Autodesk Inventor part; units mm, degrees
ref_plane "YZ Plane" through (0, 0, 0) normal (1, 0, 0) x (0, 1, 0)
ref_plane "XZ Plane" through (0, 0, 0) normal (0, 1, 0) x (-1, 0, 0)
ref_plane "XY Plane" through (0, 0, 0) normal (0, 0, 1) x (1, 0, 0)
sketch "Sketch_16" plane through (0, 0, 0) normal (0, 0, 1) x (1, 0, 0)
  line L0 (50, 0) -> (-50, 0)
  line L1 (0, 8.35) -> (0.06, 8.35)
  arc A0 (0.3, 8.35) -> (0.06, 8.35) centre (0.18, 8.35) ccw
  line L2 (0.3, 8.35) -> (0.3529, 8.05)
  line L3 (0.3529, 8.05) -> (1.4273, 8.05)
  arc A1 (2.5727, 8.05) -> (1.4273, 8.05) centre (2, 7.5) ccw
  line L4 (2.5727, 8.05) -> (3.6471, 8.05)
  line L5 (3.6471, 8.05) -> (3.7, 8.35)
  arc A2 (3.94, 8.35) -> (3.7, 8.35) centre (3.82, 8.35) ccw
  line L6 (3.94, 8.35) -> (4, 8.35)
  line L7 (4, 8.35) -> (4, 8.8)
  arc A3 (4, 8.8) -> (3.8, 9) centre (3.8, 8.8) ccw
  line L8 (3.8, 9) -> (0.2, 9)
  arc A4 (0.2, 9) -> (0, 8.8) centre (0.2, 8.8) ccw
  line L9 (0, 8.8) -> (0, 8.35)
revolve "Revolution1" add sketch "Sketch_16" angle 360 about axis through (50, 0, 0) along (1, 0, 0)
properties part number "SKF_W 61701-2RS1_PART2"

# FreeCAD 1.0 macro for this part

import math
import FreeCAD as App
import Part
import Sketcher

V = App.Vector
Q = App.Units.Quantity

doc = App.newDocument("Part")
params = doc.addObject("Spreadsheet::Sheet", "Params")
for row, (alias, value) in enumerate([
    ("sketch1_radius", "0.2 mm"),
    ("sketch1_radius2", "0.12 mm"),
    ("sketch1_width", "3.6 mm"),
    ("sketch1_width2", "0.06 mm"),
    ("sketch1_height", "0.45 mm"),
    ("revolution_angle", "360 deg"),
], start=1):
    params.set(f"A{row}", alias)
    params.set(f"B{row}", "=" + value)
    params.setAlias(f"B{row}", alias)

body = doc.addObject("PartDesign::Body", "Body")

# Sketch on XY plane
sketch1 = body.newObject("Sketcher::SketchObject", "Sketch")
sketch1.AttachmentSupport = (doc.getObject("XY_Plane"), [""])
sketch1.MapMode = "FlatFace"
sketch1.addGeometry([
    Part.LineSegment(V(0, 8.8, 0), V(0, 8.35, 0)),  # 0
    Part.LineSegment(V(0, 8.35, 0), V(0.06, 8.35, 0)),  # 1
    Part.ArcOfCircle(Part.Circle(V(0.18, 8.35, 0), V(0, 0, 1), 0.12), math.radians(0), math.radians(180)),  # 2
    Part.LineSegment(V(0.3, 8.35, 0), V(0.3529, 8.05, 0)),  # 3
    Part.LineSegment(V(0.3529, 8.05, 0), V(1.4273, 8.05, 0)),  # 4
    Part.ArcOfCircle(Part.Circle(V(2, 7.5, 0), V(0, 0, 1), 0.794031), math.radians(43.841688), math.radians(136.158312)),  # 5
    Part.LineSegment(V(2.5727, 8.05, 0), V(3.6471, 8.05, 0)),  # 6
    Part.LineSegment(V(3.6471, 8.05, 0), V(3.7, 8.35, 0)),  # 7
    Part.ArcOfCircle(Part.Circle(V(3.82, 8.35, 0), V(0, 0, 1), 0.12), math.radians(0), math.radians(180)),  # 8
    Part.LineSegment(V(3.94, 8.35, 0), V(4, 8.35, 0)),  # 9
    Part.LineSegment(V(4, 8.35, 0), V(4, 8.8, 0)),  # 10
    Part.ArcOfCircle(Part.Circle(V(3.8, 8.8, 0), V(0, 0, 1), 0.2), math.radians(0), math.radians(90)),  # 11
    Part.LineSegment(V(3.8, 9, 0), V(0.2, 9, 0)),  # 12
    Part.ArcOfCircle(Part.Circle(V(0.2, 8.8, 0), V(0, 0, 1), 0.2), math.radians(90), math.radians(180)),  # 13
], False)
sketch1.addConstraint([
    Sketcher.Constraint("Coincident", 0, 2, 1, 1),
    Sketcher.Constraint("Coincident", 1, 2, 2, 2),
    Sketcher.Constraint("Coincident", 2, 1, 3, 1),
    Sketcher.Constraint("Coincident", 3, 2, 4, 1),
    Sketcher.Constraint("Coincident", 4, 2, 5, 2),
    Sketcher.Constraint("Coincident", 5, 1, 6, 1),
    Sketcher.Constraint("Coincident", 6, 2, 7, 1),
    Sketcher.Constraint("Coincident", 7, 2, 8, 2),
    Sketcher.Constraint("Coincident", 8, 1, 9, 1),
    Sketcher.Constraint("Coincident", 9, 2, 10, 1),
    Sketcher.Constraint("Tangent", 10, 2, 11, 1),
    Sketcher.Constraint("Tangent", 11, 2, 12, 1),
    Sketcher.Constraint("Tangent", 12, 2, 13, 1),
    Sketcher.Constraint("Tangent", 13, 2, 0, 1),
    Sketcher.Constraint("Vertical", 0),
    Sketcher.Constraint("Horizontal", 1),
    Sketcher.Constraint("Horizontal", 4),
    Sketcher.Constraint("Horizontal", 6),
    Sketcher.Constraint("Horizontal", 9),
    Sketcher.Constraint("Vertical", 10),
    Sketcher.Constraint("Horizontal", 12),
    Sketcher.Constraint("Equal", 2, 8),
    Sketcher.Constraint("Equal", 11, 13),
    Sketcher.Constraint("PointOnObject", 0, 2, -2),
    Sketcher.Constraint("Horizontal", 2, 3, 8, 3),
    Sketcher.Constraint("Horizontal", 8, 3, 0, 2),
    Sketcher.Constraint("Horizontal", 1, 2, 2, 1),
    Sketcher.Constraint("Horizontal", 4, 2, 5, 1),
    Sketcher.Constraint("Horizontal", 2, 1, 7, 2),
    Sketcher.Constraint("Horizontal", 7, 2, 8, 1),
    Sketcher.Constraint("Equal", 4, 6),
    Sketcher.Constraint("Equal", 1, 9),
    Sketcher.Constraint("Equal", 3, 7),
    Sketcher.Constraint("Radius", 11, 0.2),
    Sketcher.Constraint("Angle", 3, Q("-79.9996 deg")),
    Sketcher.Constraint("Radius", 2, 0.12),
    Sketcher.Constraint("DistanceX", 12, 2, 12, 1, 3.6),
    Sketcher.Constraint("DistanceY", -1, 1, 11, 2, 9.0),
    Sketcher.Constraint("Radius", 5, 0.794),
    Sketcher.Constraint("DistanceX", 1, 1, 1, 2, 0.06),
    Sketcher.Constraint("DistanceY", 0, 2, 0, 1, 0.45),
    Sketcher.Constraint("DistanceY", -1, 1, 5, 3, 7.5),
    Sketcher.Constraint("DistanceY", 3, 2, 2, 1, 0.3),
])
sketch1.setExpression("Constraints[33]", "Params.sketch1_radius")
sketch1.setExpression("Constraints[35]", "Params.sketch1_radius2")
sketch1.setExpression("Constraints[36]", "Params.sketch1_width")
sketch1.setExpression("Constraints[39]", "Params.sketch1_width2")
sketch1.setExpression("Constraints[40]", "Params.sketch1_height")
revolution = body.newObject("PartDesign::Revolution", "Revolution")
revolution.Profile = sketch1
revolution.ReferenceAxis = (sketch1, ["H_Axis"])
revolution.setExpression("Angle", "Params.revolution_angle")

doc.recompute()
